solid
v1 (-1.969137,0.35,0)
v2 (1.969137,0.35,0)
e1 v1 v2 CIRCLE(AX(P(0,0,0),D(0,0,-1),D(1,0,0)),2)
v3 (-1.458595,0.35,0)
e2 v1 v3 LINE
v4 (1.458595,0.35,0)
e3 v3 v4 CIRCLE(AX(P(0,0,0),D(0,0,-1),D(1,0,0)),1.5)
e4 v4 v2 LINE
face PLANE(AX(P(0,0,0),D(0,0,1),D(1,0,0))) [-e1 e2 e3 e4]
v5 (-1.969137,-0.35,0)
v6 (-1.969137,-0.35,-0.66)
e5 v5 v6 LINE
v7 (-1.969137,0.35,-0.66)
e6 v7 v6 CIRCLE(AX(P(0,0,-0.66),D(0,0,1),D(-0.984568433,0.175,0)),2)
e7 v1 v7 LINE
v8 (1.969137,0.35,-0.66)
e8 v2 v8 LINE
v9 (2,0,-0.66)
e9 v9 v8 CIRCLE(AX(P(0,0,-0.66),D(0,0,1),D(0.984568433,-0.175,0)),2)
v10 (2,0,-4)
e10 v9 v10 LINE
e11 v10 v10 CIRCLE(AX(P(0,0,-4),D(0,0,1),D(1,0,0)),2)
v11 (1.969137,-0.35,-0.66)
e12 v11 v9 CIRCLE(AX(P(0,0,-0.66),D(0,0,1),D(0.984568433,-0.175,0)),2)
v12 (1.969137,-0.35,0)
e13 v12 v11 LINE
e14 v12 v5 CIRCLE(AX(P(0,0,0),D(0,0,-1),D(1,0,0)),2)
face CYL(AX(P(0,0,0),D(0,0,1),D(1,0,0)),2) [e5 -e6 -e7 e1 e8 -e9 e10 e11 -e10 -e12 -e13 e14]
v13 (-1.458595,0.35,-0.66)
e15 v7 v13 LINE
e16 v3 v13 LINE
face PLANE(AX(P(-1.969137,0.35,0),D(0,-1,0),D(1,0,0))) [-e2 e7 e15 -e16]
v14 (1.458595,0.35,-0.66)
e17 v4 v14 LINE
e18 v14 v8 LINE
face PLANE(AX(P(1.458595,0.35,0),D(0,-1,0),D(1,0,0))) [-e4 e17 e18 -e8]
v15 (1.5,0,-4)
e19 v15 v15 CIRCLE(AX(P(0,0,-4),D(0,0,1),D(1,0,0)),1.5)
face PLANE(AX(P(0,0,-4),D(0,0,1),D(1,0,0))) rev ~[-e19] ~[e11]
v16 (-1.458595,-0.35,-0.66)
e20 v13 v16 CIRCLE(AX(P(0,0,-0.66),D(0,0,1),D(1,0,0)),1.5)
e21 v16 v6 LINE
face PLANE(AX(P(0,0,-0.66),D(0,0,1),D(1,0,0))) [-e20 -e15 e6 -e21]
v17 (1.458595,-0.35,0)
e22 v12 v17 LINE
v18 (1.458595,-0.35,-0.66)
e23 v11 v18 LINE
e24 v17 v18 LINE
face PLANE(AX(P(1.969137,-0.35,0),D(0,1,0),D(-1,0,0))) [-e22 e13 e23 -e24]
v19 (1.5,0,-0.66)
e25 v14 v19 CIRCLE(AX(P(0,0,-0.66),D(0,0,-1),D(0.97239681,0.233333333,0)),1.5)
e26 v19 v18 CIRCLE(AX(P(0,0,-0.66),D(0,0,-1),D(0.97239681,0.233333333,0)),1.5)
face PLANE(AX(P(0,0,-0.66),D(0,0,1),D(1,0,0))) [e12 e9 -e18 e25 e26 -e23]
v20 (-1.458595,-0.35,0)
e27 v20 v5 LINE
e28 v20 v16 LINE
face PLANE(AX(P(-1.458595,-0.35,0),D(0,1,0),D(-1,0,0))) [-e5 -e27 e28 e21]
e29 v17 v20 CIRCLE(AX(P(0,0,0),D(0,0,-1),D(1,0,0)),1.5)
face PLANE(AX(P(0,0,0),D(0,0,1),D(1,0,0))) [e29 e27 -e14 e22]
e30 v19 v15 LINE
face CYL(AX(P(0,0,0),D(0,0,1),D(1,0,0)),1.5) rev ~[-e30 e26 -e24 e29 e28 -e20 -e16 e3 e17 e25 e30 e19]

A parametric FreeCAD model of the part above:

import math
import FreeCAD as App
import Part
import Sketcher
Q = App.Units.Quantity

doc = App.newDocument("Part")
body = doc.addObject("PartDesign::Body", "Body")

# Sketch on XY plane
sketch1 = body.newObject("Sketcher::SketchObject", "Sketch")
sketch1.AttachmentSupport = (doc.getObject("XY_Plane"), [""])
sketch1.MapMode = "FlatFace"
sketch1.addGeometry([
    Part.Circle(App.Vector(0, 0, 0), App.Vector(0, 0, 1), 2),
    Part.Circle(App.Vector(0, 0, 0), App.Vector(0, 0, 1), 1.5),
], False)
sketch1.addConstraint([
    Sketcher.Constraint("Coincident", 0, 3, -1, 1),
    Sketcher.Constraint("Coincident", 1, 3, -1, 1),
    Sketcher.Constraint("Diameter", 0, Q("4 mm")),
    Sketcher.Constraint("Diameter", 1, Q("3 mm")),
])
pad1 = body.newObject("PartDesign::Pad", "Pad")
pad1.Profile = sketch1
pad1.Length = 4
pad1.Reversed = True

# Sketch on XY plane
sketch2 = body.newObject("Sketcher::SketchObject", "Sketch001")
sketch2.AttachmentSupport = (doc.getObject("XY_Plane"), [""])
sketch2.MapMode = "FlatFace"
sketch2.addGeometry([
    Part.ArcOfCircle(Part.Circle(App.Vector(0, 0, 0), App.Vector(0, 0, 1), 2), math.radians(-10), math.radians(10)),  # 0
    Part.LineSegment(App.Vector(2, 0.3, 0), App.Vector(1.5, 0.3, 0)),  # 1
    Part.ArcOfCircle(Part.Circle(App.Vector(0, 0, 0), App.Vector(0, 0, 1), 1.5), math.radians(-13), math.radians(13)),  # 2
    Part.LineSegment(App.Vector(1.5, -0.3, 0), App.Vector(2, -0.3, 0)),  # 3
    Part.LineSegment(App.Vector(-1.5, 0.3, 0), App.Vector(-2, 0.3, 0)),  # 4
    Part.ArcOfCircle(Part.Circle(App.Vector(0, 0, 0), App.Vector(0, 0, 1), 2), math.radians(170), math.radians(190)),  # 5
    Part.LineSegment(App.Vector(-2, -0.3, 0), App.Vector(-1.5, -0.3, 0)),  # 6
    Part.ArcOfCircle(Part.Circle(App.Vector(0, 0, 0), App.Vector(0, 0, 1), 1.5), math.radians(167), math.radians(193)),  # 7
], False)
sketch2.addConstraint([
    Sketcher.Constraint("Coincident", 0, 2, 1, 1),
    Sketcher.Constraint("Coincident", 1, 2, 2, 2),
    Sketcher.Constraint("Coincident", 2, 1, 3, 1),
    Sketcher.Constraint("Coincident", 3, 2, 0, 1),
    Sketcher.Constraint("Coincident", 4, 2, 5, 1),
    Sketcher.Constraint("Coincident", 5, 2, 6, 1),
    Sketcher.Constraint("Coincident", 6, 2, 7, 2),
    Sketcher.Constraint("Coincident", 7, 1, 4, 1),
    Sketcher.Constraint("Horizontal", 1),
    Sketcher.Constraint("Horizontal", 3),
    Sketcher.Constraint("Horizontal", 4),
    Sketcher.Constraint("Horizontal", 6),
    Sketcher.Constraint("Coincident", 0, 3, -1, 1),
    Sketcher.Constraint("Coincident", 2, 3, -1, 1),
    Sketcher.Constraint("Coincident", 5, 3, -1, 1),
    Sketcher.Constraint("Coincident", 7, 3, -1, 1),
    Sketcher.Constraint("Equal", 0, 5),
    Sketcher.Constraint("Equal", 2, 7),
    Sketcher.Constraint("Horizontal", 1, 2, 4, 2),
    Sketcher.Constraint("Horizontal", 3, 2, 5, 2),
    Sketcher.Constraint("Vertical", 1, 2, 2, 1),
    Sketcher.Constraint("Radius", 0, Q("2 mm")),
    Sketcher.Constraint("Radius", 2, Q("1.5 mm")),
    Sketcher.Constraint("DistanceY", 2, 1, 1, 2, Q("0.7 mm")),
])
pocket1 = body.newObject("PartDesign::Pocket", "Pocket")
pocket1.Profile = sketch2
pocket1.Length = 0.66

doc.recompute()
